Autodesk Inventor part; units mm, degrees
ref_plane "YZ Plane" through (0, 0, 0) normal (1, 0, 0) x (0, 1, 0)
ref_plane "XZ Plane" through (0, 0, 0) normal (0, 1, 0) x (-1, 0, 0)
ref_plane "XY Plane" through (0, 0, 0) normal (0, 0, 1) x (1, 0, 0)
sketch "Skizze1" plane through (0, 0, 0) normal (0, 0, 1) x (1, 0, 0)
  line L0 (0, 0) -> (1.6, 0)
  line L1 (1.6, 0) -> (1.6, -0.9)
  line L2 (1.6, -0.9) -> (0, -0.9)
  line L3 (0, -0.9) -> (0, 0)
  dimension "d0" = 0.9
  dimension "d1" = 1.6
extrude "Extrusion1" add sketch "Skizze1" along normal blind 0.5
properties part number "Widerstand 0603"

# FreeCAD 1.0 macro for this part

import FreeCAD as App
import Part
import Sketcher
from FreeCAD import Vector
Q = App.Units.Quantity

doc = App.newDocument("Part")
body = doc.addObject("PartDesign::Body", "Body")

# Sketch on XY plane
sketch1 = body.newObject("Sketcher::SketchObject", "Sketch")
sketch1.AttachmentSupport = (doc.getObject("XY_Plane"), [""])
sketch1.MapMode = "FlatFace"
sketch1.addGeometry(Part.LineSegment(Vector(1.6, 0, 0), Vector(0, 0, 0)), False)
sketch1.addGeometry(Part.LineSegment(Vector(0, 0, 0), Vector(0, -0.9, 0)), False)
sketch1.addGeometry(Part.LineSegment(Vector(0, -0.9, 0), Vector(1.6, -0.9, 0)), False)
sketch1.addGeometry(Part.LineSegment(Vector(1.6, -0.9, 0), Vector(1.6, 0, 0)), False)
sketch1.addConstraint(Sketcher.Constraint("Coincident", 0, 2, 1, 1))
sketch1.addConstraint(Sketcher.Constraint("Coincident", 1, 2, 2, 1))
sketch1.addConstraint(Sketcher.Constraint("Coincident", 2, 2, 3, 1))
sketch1.addConstraint(Sketcher.Constraint("Coincident", 3, 2, 0, 1))
sketch1.addConstraint(Sketcher.Constraint("Horizontal", 0))
sketch1.addConstraint(Sketcher.Constraint("Vertical", 1))
sketch1.addConstraint(Sketcher.Constraint("Horizontal", 2))
sketch1.addConstraint(Sketcher.Constraint("Vertical", 3))
sketch1.addConstraint(Sketcher.Constraint("Coincident", 0, 2, -1, 1))
sketch1.addConstraint(Sketcher.Constraint("DistanceX", 0, 2, 0, 1, Q("1.6 mm")))
sketch1.addConstraint(Sketcher.Constraint("DistanceY", 1, 2, 1, 1, Q("0.9 mm")))
pad1 = body.newObject("PartDesign::Pad", "Pad")
pad1.Profile = sketch1
pad1.Length = 0.5

doc.recompute()
